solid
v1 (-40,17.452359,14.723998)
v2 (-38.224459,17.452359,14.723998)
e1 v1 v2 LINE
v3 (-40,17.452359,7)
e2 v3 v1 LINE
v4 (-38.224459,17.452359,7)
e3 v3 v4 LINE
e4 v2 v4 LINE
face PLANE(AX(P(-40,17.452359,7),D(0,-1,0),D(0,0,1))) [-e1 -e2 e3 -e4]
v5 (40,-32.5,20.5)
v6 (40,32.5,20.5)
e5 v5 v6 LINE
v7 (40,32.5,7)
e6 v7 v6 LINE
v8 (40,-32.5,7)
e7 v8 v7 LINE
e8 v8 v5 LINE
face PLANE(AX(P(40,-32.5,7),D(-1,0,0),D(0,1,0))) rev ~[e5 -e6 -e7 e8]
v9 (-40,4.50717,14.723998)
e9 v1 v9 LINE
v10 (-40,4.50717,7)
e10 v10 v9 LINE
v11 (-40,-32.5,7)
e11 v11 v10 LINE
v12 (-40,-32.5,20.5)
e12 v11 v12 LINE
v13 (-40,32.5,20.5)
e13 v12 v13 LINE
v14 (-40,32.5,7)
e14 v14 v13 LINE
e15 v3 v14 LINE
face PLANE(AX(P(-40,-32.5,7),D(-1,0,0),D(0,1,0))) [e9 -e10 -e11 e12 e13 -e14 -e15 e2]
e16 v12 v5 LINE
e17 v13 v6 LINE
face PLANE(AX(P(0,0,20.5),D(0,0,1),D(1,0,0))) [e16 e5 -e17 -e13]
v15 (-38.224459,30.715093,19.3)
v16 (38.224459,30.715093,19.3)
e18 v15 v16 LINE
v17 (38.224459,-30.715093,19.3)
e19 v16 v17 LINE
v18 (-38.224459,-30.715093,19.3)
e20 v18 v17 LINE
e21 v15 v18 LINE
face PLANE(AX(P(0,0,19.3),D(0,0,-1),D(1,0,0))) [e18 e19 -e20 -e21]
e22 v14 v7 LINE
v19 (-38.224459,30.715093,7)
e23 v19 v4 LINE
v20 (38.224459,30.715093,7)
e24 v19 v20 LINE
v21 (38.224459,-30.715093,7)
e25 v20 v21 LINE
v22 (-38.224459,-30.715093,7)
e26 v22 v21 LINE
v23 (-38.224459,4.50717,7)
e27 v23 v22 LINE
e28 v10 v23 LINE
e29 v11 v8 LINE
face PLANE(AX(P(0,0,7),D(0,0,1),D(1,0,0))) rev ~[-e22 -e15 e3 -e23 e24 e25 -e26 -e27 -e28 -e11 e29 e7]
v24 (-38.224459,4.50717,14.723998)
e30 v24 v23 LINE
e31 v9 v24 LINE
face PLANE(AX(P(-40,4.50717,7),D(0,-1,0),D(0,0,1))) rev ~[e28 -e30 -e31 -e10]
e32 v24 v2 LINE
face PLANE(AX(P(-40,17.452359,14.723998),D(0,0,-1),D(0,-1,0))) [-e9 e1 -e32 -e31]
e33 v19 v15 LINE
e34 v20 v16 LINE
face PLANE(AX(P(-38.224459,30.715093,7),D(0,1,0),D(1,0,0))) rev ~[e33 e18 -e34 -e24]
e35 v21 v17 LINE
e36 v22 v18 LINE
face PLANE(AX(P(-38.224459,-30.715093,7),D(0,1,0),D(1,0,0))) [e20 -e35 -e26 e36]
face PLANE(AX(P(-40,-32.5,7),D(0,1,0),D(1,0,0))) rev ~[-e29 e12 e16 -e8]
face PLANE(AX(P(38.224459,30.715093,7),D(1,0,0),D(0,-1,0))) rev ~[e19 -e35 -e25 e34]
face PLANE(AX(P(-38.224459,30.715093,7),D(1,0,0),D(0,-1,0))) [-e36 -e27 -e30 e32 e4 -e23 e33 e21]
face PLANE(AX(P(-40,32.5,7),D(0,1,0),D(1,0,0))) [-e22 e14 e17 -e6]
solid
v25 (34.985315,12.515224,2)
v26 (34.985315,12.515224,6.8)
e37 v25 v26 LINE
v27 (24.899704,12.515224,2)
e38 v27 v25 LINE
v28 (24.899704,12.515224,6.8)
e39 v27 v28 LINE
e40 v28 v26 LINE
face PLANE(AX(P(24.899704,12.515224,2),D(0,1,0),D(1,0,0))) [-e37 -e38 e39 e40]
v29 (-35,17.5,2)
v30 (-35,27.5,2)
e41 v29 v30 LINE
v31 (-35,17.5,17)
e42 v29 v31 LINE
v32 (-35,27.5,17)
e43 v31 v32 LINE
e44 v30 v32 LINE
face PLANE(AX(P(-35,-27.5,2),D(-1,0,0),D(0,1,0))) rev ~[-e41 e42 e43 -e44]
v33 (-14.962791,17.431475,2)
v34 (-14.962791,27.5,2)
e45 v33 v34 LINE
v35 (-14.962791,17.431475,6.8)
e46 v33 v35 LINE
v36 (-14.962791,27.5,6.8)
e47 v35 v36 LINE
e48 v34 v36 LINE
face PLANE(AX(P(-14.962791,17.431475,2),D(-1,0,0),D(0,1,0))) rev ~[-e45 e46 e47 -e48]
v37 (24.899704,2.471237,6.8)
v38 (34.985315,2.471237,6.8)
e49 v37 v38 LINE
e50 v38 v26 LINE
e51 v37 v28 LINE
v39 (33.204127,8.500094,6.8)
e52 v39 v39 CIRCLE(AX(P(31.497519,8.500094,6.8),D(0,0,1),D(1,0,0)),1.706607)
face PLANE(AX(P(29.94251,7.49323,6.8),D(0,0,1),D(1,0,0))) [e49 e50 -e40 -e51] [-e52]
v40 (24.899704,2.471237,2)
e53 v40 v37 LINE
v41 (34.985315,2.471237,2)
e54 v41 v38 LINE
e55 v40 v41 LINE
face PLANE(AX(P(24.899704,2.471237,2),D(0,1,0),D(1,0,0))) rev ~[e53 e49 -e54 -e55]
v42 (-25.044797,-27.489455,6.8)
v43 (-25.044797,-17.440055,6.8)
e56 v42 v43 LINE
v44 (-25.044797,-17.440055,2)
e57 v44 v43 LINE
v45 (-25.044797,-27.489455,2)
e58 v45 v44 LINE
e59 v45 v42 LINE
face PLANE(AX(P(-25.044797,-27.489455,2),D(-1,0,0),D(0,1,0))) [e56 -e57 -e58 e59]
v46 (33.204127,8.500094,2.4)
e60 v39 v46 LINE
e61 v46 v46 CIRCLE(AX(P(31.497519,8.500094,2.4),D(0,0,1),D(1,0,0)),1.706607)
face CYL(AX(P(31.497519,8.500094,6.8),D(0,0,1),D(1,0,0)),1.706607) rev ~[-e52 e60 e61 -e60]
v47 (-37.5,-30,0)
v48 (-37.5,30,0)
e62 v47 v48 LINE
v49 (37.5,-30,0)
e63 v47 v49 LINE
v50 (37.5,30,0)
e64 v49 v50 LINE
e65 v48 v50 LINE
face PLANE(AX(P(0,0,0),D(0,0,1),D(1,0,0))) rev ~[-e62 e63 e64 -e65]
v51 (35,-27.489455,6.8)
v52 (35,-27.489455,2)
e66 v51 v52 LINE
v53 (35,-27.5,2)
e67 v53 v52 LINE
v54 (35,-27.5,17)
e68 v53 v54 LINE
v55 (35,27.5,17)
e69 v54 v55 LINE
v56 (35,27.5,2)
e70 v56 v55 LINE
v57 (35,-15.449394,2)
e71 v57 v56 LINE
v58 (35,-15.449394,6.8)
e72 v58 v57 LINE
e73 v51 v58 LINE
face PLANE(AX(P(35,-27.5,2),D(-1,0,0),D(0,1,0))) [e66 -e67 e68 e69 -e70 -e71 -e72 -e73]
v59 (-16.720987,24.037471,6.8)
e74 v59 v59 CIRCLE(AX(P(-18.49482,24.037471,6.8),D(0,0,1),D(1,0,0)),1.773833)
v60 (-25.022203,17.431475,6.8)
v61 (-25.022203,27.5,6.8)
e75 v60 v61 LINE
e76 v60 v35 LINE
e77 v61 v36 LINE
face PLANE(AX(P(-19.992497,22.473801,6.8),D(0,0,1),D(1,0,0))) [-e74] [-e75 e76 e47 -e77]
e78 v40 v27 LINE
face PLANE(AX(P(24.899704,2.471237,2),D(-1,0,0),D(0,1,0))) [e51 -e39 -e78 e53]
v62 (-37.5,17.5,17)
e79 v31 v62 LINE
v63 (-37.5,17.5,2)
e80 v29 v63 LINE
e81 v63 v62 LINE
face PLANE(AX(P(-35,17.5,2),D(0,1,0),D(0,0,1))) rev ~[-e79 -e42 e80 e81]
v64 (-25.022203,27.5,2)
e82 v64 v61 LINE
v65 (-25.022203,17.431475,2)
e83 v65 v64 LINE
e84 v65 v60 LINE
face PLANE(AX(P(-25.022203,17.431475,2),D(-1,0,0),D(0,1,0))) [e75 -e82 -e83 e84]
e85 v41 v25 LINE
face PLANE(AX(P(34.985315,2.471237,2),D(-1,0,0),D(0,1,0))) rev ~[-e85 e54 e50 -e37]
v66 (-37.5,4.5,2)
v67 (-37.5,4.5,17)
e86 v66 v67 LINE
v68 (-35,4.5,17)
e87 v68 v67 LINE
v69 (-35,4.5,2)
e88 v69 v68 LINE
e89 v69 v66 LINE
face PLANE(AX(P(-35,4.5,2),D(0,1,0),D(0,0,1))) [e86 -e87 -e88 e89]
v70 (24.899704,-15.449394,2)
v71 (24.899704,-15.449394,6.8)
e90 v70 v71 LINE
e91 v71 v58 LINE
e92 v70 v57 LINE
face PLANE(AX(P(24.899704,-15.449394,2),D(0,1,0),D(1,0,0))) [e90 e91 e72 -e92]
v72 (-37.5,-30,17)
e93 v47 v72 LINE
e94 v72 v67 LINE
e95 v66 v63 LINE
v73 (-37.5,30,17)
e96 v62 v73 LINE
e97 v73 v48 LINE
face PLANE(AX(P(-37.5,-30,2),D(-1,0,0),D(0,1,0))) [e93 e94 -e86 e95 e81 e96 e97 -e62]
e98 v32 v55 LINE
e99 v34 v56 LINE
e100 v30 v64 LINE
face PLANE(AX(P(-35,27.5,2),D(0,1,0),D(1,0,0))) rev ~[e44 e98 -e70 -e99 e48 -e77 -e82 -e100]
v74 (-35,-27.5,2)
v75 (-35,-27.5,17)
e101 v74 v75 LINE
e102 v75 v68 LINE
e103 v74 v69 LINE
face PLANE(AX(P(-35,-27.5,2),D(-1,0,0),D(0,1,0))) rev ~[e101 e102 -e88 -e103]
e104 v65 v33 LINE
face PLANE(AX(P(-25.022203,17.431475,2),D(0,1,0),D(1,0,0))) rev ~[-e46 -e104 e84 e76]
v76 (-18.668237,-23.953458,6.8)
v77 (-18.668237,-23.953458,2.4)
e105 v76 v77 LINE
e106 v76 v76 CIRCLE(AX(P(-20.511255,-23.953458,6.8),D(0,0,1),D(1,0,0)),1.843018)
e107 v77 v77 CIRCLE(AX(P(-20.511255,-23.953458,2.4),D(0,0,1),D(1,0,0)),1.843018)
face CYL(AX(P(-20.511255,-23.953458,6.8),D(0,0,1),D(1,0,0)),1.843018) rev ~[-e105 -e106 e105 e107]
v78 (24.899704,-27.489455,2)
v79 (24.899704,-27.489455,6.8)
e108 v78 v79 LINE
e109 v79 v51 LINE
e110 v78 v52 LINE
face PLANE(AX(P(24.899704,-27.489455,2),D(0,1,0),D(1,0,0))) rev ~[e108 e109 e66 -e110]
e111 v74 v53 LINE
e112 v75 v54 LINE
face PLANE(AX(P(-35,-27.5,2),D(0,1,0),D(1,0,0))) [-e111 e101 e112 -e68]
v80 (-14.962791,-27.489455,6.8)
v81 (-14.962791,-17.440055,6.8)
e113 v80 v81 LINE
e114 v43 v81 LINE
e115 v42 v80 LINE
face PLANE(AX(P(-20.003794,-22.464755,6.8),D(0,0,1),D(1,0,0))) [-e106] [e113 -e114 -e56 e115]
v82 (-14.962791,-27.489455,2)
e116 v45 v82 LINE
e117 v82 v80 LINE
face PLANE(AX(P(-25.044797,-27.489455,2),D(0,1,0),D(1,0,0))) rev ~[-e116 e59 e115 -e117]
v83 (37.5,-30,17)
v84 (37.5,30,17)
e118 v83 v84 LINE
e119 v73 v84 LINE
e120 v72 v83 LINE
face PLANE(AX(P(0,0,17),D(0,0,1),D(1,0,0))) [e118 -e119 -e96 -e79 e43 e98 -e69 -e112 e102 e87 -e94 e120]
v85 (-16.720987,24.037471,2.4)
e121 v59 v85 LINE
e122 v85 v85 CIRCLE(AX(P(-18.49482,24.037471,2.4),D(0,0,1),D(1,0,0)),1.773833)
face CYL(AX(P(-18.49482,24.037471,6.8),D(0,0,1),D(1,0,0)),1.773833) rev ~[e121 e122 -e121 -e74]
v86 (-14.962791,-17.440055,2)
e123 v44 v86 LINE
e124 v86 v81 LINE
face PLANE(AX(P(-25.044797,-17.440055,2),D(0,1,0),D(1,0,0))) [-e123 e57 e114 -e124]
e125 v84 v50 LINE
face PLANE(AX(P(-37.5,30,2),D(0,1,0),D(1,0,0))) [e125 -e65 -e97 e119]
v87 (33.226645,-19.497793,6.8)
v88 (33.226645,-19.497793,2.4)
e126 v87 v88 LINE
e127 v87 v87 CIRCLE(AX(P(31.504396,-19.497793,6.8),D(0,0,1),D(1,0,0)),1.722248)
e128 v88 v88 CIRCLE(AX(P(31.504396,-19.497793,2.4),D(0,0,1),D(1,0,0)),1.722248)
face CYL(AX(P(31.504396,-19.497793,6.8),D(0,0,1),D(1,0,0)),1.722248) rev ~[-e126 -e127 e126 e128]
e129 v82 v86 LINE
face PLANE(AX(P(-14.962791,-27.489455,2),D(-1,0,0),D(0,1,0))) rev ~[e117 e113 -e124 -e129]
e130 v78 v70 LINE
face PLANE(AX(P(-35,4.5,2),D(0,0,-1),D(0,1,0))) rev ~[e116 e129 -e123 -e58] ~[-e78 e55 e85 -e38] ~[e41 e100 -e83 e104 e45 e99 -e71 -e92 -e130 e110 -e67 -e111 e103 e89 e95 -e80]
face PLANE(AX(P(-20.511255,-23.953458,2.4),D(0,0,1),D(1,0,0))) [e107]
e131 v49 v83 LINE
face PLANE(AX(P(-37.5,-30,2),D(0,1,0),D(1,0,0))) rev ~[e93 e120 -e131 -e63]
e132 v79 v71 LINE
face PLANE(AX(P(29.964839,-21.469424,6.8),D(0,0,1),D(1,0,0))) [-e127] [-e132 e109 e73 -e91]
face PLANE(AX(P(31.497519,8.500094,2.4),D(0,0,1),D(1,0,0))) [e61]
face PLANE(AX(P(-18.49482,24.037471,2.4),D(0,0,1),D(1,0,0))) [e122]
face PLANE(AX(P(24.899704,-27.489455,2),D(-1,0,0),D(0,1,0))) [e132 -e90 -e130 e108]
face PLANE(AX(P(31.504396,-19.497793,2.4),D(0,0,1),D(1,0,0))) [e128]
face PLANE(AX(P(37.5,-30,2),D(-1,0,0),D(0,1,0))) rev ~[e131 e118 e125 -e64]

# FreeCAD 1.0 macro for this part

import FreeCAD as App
import Part
import Sketcher
Q = App.Units.Quantity


def add_polygon(sketch, points):
    """Adds a closed chain of lines whose ends are joined by coincident constraints."""
    first, n = sketch.GeometryCount, len(points)
    for a, b in zip(points, points[1:] + points[:1]):
        sketch.addGeometry(Part.LineSegment(App.Vector(*a, 0), App.Vector(*b, 0)), False)
    for i in range(n):
        sketch.addConstraint(Sketcher.Constraint("Coincident", first + i, 2, first + (i + 1) % n, 1))

doc = App.newDocument("Part")
body = doc.addObject("PartDesign::Body", "Body")

# Sketch on XY plane
sketch1 = body.newObject("Sketcher::SketchObject", "Sketch")
sketch1.AttachmentSupport = (doc.getObject("XY_Plane"), [""])
sketch1.MapMode = "FlatFace"
add_polygon(sketch1, [(-38, 30), (-38, -30), (38, -30), (38, 30)])  # lines 0-3
sketch1.addConstraint(Sketcher.Constraint("Vertical", 0))
sketch1.addConstraint(Sketcher.Constraint("Horizontal", 1))
sketch1.addConstraint(Sketcher.Constraint("Vertical", 2))
sketch1.addConstraint(Sketcher.Constraint("Horizontal", 3))
sketch1.addConstraint(Sketcher.Constraint("Symmetric", 0, 2, 2, 2, -1, 1))
sketch1.addConstraint(Sketcher.Constraint("DistanceX", 1, 1, 1, 2, Q("75 mm")))
sketch1.addConstraint(Sketcher.Constraint("DistanceY", 0, 2, 0, 1, Q("60 mm")))
pad1 = body.newObject("PartDesign::Pad", "Pad")
pad1.Profile = sketch1
pad1.Length = 2

# Sketch on XY plane
sketch2 = body.newObject("Sketcher::SketchObject", "Sketch001")
sketch2.AttachmentSupport = (doc.getObject("XY_Plane"), [""])
sketch2.MapMode = "FlatFace"
sketch2.AttachmentOffset = App.Placement(App.Vector(0, 0, 2), App.Rotation())
add_polygon(sketch2, [(-38, 30), (-38, -30), (38, -30), (38, 30)])  # lines 0-3
add_polygon(sketch2, [(35, -28), (-35, -28), (-35, 28), (35, 28)])  # lines 4-7
sketch2.addConstraint(Sketcher.Constraint("Vertical", 0))
sketch2.addConstraint(Sketcher.Constraint("Horizontal", 1))
sketch2.addConstraint(Sketcher.Constraint("Vertical", 2))
sketch2.addConstraint(Sketcher.Constraint("Horizontal", 3))
sketch2.addConstraint(Sketcher.Constraint("Horizontal", 4))
sketch2.addConstraint(Sketcher.Constraint("Vertical", 5))
sketch2.addConstraint(Sketcher.Constraint("Horizontal", 6))
sketch2.addConstraint(Sketcher.Constraint("Vertical", 7))
sketch2.addConstraint(Sketcher.Constraint("Symmetric", 0, 2, 2, 2, -1, 1))
sketch2.addConstraint(Sketcher.Constraint("Symmetric", 4, 2, 6, 2, -1, 1))
sketch2.addConstraint(Sketcher.Constraint("DistanceX", 1, 1, 1, 2, Q("75 mm")))
sketch2.addConstraint(Sketcher.Constraint("DistanceX", 4, 2, 4, 1, Q("70 mm")))
sketch2.addConstraint(Sketcher.Constraint("DistanceY", 0, 2, 0, 1, Q("60 mm")))
sketch2.addConstraint(Sketcher.Constraint("DistanceY", 5, 1, 5, 2, Q("55 mm")))
pad2 = body.newObject("PartDesign::Pad", "Pad001")
pad2.Profile = sketch2
pad2.Length = 15

# Sketch on YZ plane
sketch3 = body.newObject("Sketcher::SketchObject", "Sketch002")
sketch3.AttachmentSupport = (doc.getObject("YZ_Plane"), [""])
sketch3.MapMode = "FlatFace"
sketch3.AttachmentOffset = App.Placement(App.Vector(0, 0, -35), App.Rotation())
add_polygon(sketch3, [(4, 17), (4, 2), (18, 2), (18, 17)])  # lines 0-3
sketch3.addConstraint(Sketcher.Constraint("Vertical", 0))
sketch3.addConstraint(Sketcher.Constraint("Horizontal", 1))
sketch3.addConstraint(Sketcher.Constraint("Vertical", 2))
sketch3.addConstraint(Sketcher.Constraint("Horizontal", 3))
sketch3.addConstraint(Sketcher.Constraint("DistanceX", 1, 1, 1, 2, Q("13 mm")))
sketch3.addConstraint(Sketcher.Constraint("DistanceY", 0, 2, 0, 1, Q("15 mm")))
sketch3.addConstraint(Sketcher.Constraint("DistanceY", -1, 1, 0, 2, Q("2 mm")))
sketch3.addConstraint(Sketcher.Constraint("DistanceX", -1, 1, 0, 2, Q("4.5 mm")))
pocket1 = body.newObject("PartDesign::Pocket", "Pocket")
pocket1.Profile = sketch3
pocket1.Type = "ThroughAll"

# Sketch on XY plane
sketch4 = body.newObject("Sketcher::SketchObject", "Sketch003")
sketch4.AttachmentSupport = (doc.getObject("XY_Plane"), [""])
sketch4.MapMode = "FlatFace"
sketch4.AttachmentOffset = App.Placement(App.Vector(0, 0, 2), App.Rotation())
add_polygon(sketch4, [(-25, 28), (-25, 17), (-15, 17), (-15, 28)])  # lines 0-3
add_polygon(sketch4, [(25, 13), (25, 2), (35, 2), (35, 13)])  # lines 4-7
add_polygon(sketch4, [(25, -15), (25, -27), (35, -27), (35, -15)])  # lines 8-11
add_polygon(sketch4, [(-25, -17), (-25, -27), (-15, -27), (-15, -17)])  # lines 12-15
sketch4.addConstraint(Sketcher.Constraint("Vertical", 0))
sketch4.addConstraint(Sketcher.Constraint("Horizontal", 1))
sketch4.addConstraint(Sketcher.Constraint("Vertical", 2))
sketch4.addConstraint(Sketcher.Constraint("Horizontal", 3))
sketch4.addConstraint(Sketcher.Constraint("Vertical", 4))
sketch4.addConstraint(Sketcher.Constraint("Horizontal", 5))
sketch4.addConstraint(Sketcher.Constraint("Vertical", 6))
sketch4.addConstraint(Sketcher.Constraint("Horizontal", 7))
sketch4.addConstraint(Sketcher.Constraint("Vertical", 8))
sketch4.addConstraint(Sketcher.Constraint("Horizontal", 9))
sketch4.addConstraint(Sketcher.Constraint("Vertical", 10))
sketch4.addConstraint(Sketcher.Constraint("Horizontal", 11))
sketch4.addConstraint(Sketcher.Constraint("Vertical", 12))
sketch4.addConstraint(Sketcher.Constraint("Horizontal", 13))
sketch4.addConstraint(Sketcher.Constraint("Vertical", 14))
sketch4.addConstraint(Sketcher.Constraint("Horizontal", 15))
sketch4.addConstraint(Sketcher.Constraint("Horizontal", 9, 2, 12, 2))
sketch4.addConstraint(Sketcher.Constraint("Vertical", 7, 2, 8, 2))
sketch4.addConstraint(Sketcher.Constraint("Vertical", 2, 2, 13, 2))
sketch4.addConstraint(Sketcher.Constraint("DistanceY", 12, 2, 12, 1, Q("10.049401 mm")))
sketch4.addConstraint(Sketcher.Constraint("DistanceX", 1, 1, 1, 2, Q("10.059412 mm")))
sketch4.addConstraint(Sketcher.Constraint("DistanceX", 5, 1, 5, 2, Q("10.085611 mm")))
sketch4.addConstraint(Sketcher.Constraint("DistanceX", 9, 1, 9, 2, Q("10.130269 mm")))
sketch4.addConstraint(Sketcher.Constraint("DistanceY", 0, 2, 0, 1, Q("10.084651 mm")))
sketch4.addConstraint(Sketcher.Constraint("DistanceY", 8, 2, 8, 1, Q("12.040062 mm")))
sketch4.addConstraint(Sketcher.Constraint("DistanceX", 12, 2, 8, 2, Q("49.944501 mm")))
sketch4.addConstraint(Sketcher.Constraint("DistanceX", 13, 1, 13, 2, Q("10.082006 mm")))
sketch4.addConstraint(Sketcher.Constraint("DistanceY", 4, 2, 4, 1, Q("10.043987 mm")))
sketch4.addConstraint(Sketcher.Constraint("DistanceX", 1, 2, -1, 1, Q("14.962791 mm")))
sketch4.addConstraint(Sketcher.Constraint("DistanceY", 4, 2, 1, 2, Q("14.960239 mm")))
sketch4.addConstraint(Sketcher.Constraint("DistanceY", 8, 2, 4, 2, Q("29.960692 mm")))
sketch4.addConstraint(Sketcher.Constraint("DistanceY", -1, 1, 0, 2, Q("17.431475 mm")))
pad3 = body.newObject("PartDesign::Pad", "Pad002")
pad3.Profile = sketch4
pad3.Length = 4.8

# Sketch on XY plane
sketch5 = body.newObject("Sketcher::SketchObject", "Sketch004")
sketch5.AttachmentSupport = (doc.getObject("XY_Plane"), [""])
sketch5.MapMode = "FlatFace"
sketch5.AttachmentOffset = App.Placement(App.Vector(0, 0, 6.8), App.Rotation())
sketch5.addGeometry(Part.Circle(App.Vector(-18.5, 24, 0), App.Vector(0, 0, 1), 1.8), False)
sketch5.addGeometry(Part.Circle(App.Vector(31.5, 8.5, 0), App.Vector(0, 0, 1), 1.7), False)
sketch5.addGeometry(Part.Circle(App.Vector(31.5, -19.5, 0), App.Vector(0, 0, 1), 1.7), False)
sketch5.addGeometry(Part.Circle(App.Vector(-20.5, -24, 0), App.Vector(0, 0, 1), 1.8), False)
sketch5.addConstraint(Sketcher.Constraint("Diameter", 0, Q("3.547666 mm")))
sketch5.addConstraint(Sketcher.Constraint("Diameter", 1, Q("3.413215 mm")))
sketch5.addConstraint(Sketcher.Constraint("Diameter", 2, Q("3.444496 mm")))
sketch5.addConstraint(Sketcher.Constraint("Diameter", 3, Q("3.686036 mm")))
sketch5.addConstraint(Sketcher.Constraint("DistanceX", 0, 3, -1, 1, Q("18.49482 mm")))
sketch5.addConstraint(Sketcher.Constraint("DistanceY", -1, 1, 0, 3, Q("24.037471 mm")))
sketch5.addConstraint(Sketcher.Constraint("DistanceX", -1, 1, 1, 3, Q("31.497519 mm")))
sketch5.addConstraint(Sketcher.Constraint("DistanceY", 3, 3, -1, 1, Q("23.953458 mm")))
sketch5.addConstraint(Sketcher.Constraint("DistanceX", 3, 3, 2, 3, Q("52.015651 mm")))
sketch5.addConstraint(Sketcher.Constraint("DistanceY", 3, 3, 1, 3, Q("32.453552 mm")))
sketch5.addConstraint(Sketcher.Constraint("DistanceX", -1, 1, 2, 3, Q("31.504396 mm")))
sketch5.addConstraint(Sketcher.Constraint("DistanceY", 2, 3, -1, 1, Q("19.497793 mm")))
pocket2 = body.newObject("PartDesign::Pocket", "Pocket001")
pocket2.Profile = sketch5
pocket2.Length = 4.4
body2 = doc.addObject("PartDesign::Body", "Body001")

# Sketch on XY plane
sketch6 = body2.newObject("Sketcher::SketchObject", "Sketch005")
sketch6.AttachmentSupport = (doc.getObject("XY_Plane001"), [""])
sketch6.MapMode = "FlatFace"
sketch6.AttachmentOffset = App.Placement(App.Vector(0, 0, 7), App.Rotation())
add_polygon(sketch6, [(-40, 32), (-40, -32), (40, -32), (40, 32)])  # lines 0-3
sketch6.addConstraint(Sketcher.Constraint("Vertical", 0))
sketch6.addConstraint(Sketcher.Constraint("Horizontal", 1))
sketch6.addConstraint(Sketcher.Constraint("Vertical", 2))
sketch6.addConstraint(Sketcher.Constraint("Horizontal", 3))
sketch6.addConstraint(Sketcher.Constraint("Symmetric", 0, 2, 2, 2, -1, 1))
sketch6.addConstraint(Sketcher.Constraint("DistanceX", 1, 1, 1, 2, Q("80 mm")))
sketch6.addConstraint(Sketcher.Constraint("DistanceY", 0, 2, 0, 1, Q("65 mm")))
pad4 = body2.newObject("PartDesign::Pad", "Pad003")
pad4.Profile = sketch6
pad4.Length = 13.5

# Sketch on XY plane
sketch7 = body2.newObject("Sketcher::SketchObject", "Sketch006")
sketch7.AttachmentSupport = (doc.getObject("XY_Plane001"), [""])
sketch7.MapMode = "FlatFace"
sketch7.AttachmentOffset = App.Placement(App.Vector(0, 0, 7), App.Rotation())
add_polygon(sketch7, [(-38, -31), (-38, 31), (38, 31), (38, -31)])  # lines 0-3
sketch7.addConstraint(Sketcher.Constraint("Vertical", 0))
sketch7.addConstraint(Sketcher.Constraint("Horizontal", 1))
sketch7.addConstraint(Sketcher.Constraint("Vertical", 2))
sketch7.addConstraint(Sketcher.Constraint("Horizontal", 3))
sketch7.addConstraint(Sketcher.Constraint("Symmetric", 0, 2, 2, 2, -1, 1))
sketch7.addConstraint(Sketcher.Constraint("DistanceX", 1, 1, 1, 2, Q("76.448917 mm")))
sketch7.addConstraint(Sketcher.Constraint("DistanceY", 0, 1, 0, 2, Q("61.430186 mm")))
pocket3 = body2.newObject("PartDesign::Pocket", "Pocket002")
pocket3.Profile = sketch7
pocket3.Length = 12.3
pocket3.Reversed = True

# Sketch on YZ plane
sketch8 = body2.newObject("Sketcher::SketchObject", "Sketch007")
sketch8.AttachmentSupport = (doc.getObject("YZ_Plane001"), [""])
sketch8.MapMode = "FlatFace"
sketch8.AttachmentOffset = App.Placement(App.Vector(0, 0, -40), App.Rotation())
add_polygon(sketch8, [(17, 15), (17, 7), (5, 7), (5, 15)])  # lines 0-3
sketch8.addConstraint(Sketcher.Constraint("Vertical", 0))
sketch8.addConstraint(Sketcher.Constraint("Horizontal", 1))
sketch8.addConstraint(Sketcher.Constraint("Vertical", 2))
sketch8.addConstraint(Sketcher.Constraint("Horizontal", 3))
sketch8.addConstraint(Sketcher.Constraint("DistanceY", -1, 1, 0, 2, Q("7 mm")))
sketch8.addConstraint(Sketcher.Constraint("DistanceX", 1, 2, 1, 1, Q("12.94519 mm")))
sketch8.addConstraint(Sketcher.Constraint("DistanceY", 0, 2, 0, 1, Q("7.723998 mm")))
sketch8.addConstraint(Sketcher.Constraint("DistanceX", -1, 1, 0, 2, Q("17.452359 mm")))
pocket4 = body2.newObject("PartDesign::Pocket", "Pocket003")
pocket4.Profile = sketch8
pocket4.Length = 25
pocket4.Reversed = True

doc.recompute()
